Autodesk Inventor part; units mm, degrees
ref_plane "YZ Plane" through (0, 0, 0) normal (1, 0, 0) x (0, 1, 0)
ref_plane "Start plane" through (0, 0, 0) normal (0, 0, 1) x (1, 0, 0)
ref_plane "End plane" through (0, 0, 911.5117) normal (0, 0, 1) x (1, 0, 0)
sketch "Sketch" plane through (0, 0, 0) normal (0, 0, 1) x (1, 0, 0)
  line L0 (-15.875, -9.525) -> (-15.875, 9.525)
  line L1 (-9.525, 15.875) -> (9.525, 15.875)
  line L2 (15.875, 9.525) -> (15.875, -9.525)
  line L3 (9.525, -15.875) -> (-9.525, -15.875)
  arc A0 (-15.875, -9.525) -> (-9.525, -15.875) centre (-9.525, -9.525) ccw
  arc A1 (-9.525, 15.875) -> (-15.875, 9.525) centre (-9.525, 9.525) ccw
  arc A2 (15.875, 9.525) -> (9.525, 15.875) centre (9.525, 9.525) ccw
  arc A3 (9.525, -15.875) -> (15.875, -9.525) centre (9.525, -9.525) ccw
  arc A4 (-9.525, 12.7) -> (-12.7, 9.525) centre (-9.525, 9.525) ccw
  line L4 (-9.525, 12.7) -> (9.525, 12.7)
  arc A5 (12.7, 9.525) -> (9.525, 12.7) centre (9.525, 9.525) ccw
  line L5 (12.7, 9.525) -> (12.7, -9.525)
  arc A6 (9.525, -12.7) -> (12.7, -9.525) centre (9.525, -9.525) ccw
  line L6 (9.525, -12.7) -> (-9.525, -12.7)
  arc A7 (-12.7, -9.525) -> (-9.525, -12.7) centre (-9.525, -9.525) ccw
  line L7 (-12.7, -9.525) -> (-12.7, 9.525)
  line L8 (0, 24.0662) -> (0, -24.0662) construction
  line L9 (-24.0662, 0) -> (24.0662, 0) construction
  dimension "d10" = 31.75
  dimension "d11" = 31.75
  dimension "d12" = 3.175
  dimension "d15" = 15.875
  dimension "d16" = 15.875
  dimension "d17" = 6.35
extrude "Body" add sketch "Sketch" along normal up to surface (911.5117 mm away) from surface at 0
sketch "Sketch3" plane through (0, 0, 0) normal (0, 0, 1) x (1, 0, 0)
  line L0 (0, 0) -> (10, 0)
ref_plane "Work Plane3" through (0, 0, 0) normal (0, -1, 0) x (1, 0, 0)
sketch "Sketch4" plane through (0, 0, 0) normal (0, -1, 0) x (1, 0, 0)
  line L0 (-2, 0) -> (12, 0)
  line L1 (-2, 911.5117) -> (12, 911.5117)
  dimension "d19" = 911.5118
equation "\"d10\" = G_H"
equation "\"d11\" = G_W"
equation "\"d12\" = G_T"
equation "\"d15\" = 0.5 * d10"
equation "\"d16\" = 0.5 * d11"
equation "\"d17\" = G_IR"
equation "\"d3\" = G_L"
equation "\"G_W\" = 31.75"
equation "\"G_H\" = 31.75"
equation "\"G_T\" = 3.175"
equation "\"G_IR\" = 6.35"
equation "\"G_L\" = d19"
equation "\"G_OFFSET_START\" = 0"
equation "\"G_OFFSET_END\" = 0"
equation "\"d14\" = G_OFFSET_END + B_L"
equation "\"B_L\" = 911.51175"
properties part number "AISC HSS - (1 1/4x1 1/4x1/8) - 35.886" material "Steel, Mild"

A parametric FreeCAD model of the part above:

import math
import FreeCAD as App
import Part
import Sketcher

V = App.Vector
Q = App.Units.Quantity

doc = App.newDocument("Part")
params = doc.addObject("Spreadsheet::Sheet", "Params")
for row, (alias, value) in enumerate([
    ("sketch1_radius", "0.25 in"),
    ("sketch1_radius2", "0.125 in"),
    ("pad1_length", "911.5117 mm"),
], start=1):
    params.set(f"A{row}", alias)
    params.set(f"B{row}", "=" + value)
    params.setAlias(f"B{row}", alias)

body = doc.addObject("PartDesign::Body", "Body")

# Sketch on XY plane
sketch1 = doc.addObject("Sketcher::SketchObject", "Sketch")
body.addObject(sketch1)
sketch1.AttachmentSupport = (doc.XY_Plane, [""])
sketch1.MapMode = "FlatFace"
sketch1.addGeometry([
    Part.LineSegment(V(-15.875, 9.525, 0), V(-15.875, -9.525, 0)),  # 0
    Part.ArcOfCircle(Part.Circle(V(-9.525, -9.525, 0), V(0, 0, 1), 6.35), math.radians(180), math.radians(270)),  # 1
    Part.LineSegment(V(-9.525, -15.875, 0), V(9.525, -15.875, 0)),  # 2
    Part.ArcOfCircle(Part.Circle(V(9.525, -9.525, 0), V(0, 0, 1), 6.35), math.radians(-90), math.radians(0)),  # 3
    Part.LineSegment(V(15.875, -9.525, 0), V(15.875, 9.525, 0)),  # 4
    Part.ArcOfCircle(Part.Circle(V(9.525, 9.525, 0), V(0, 0, 1), 6.35), math.radians(0), math.radians(90)),  # 5
    Part.LineSegment(V(9.525, 15.875, 0), V(-9.525, 15.875, 0)),  # 6
    Part.ArcOfCircle(Part.Circle(V(-9.525, 9.525, 0), V(0, 0, 1), 6.35), math.radians(90), math.radians(180)),  # 7
    Part.ArcOfCircle(Part.Circle(V(-9.525, 9.525, 0), V(0, 0, 1), 3.175), math.radians(90), math.radians(180)),  # 8
    Part.LineSegment(V(-9.525, 12.7, 0), V(9.525, 12.7, 0)),  # 9
    Part.ArcOfCircle(Part.Circle(V(9.525, 9.525, 0), V(0, 0, 1), 3.175), math.radians(0), math.radians(90)),  # 10
    Part.LineSegment(V(12.7, 9.525, 0), V(12.7, -9.525, 0)),  # 11
    Part.ArcOfCircle(Part.Circle(V(9.525, -9.525, 0), V(0, 0, 1), 3.175), math.radians(-90), math.radians(0)),  # 12
    Part.LineSegment(V(9.525, -12.7, 0), V(-9.525, -12.7, 0)),  # 13
    Part.ArcOfCircle(Part.Circle(V(-9.525, -9.525, 0), V(0, 0, 1), 3.175), math.radians(180), math.radians(270)),  # 14
    Part.LineSegment(V(-12.7, -9.525, 0), V(-12.7, 9.525, 0)),  # 15
], False)
sketch1.addConstraint([
    Sketcher.Constraint("Tangent", 0, 2, 1, 1),
    Sketcher.Constraint("Tangent", 1, 2, 2, 1),
    Sketcher.Constraint("Tangent", 2, 2, 3, 1),
    Sketcher.Constraint("Tangent", 3, 2, 4, 1),
    Sketcher.Constraint("Tangent", 4, 2, 5, 1),
    Sketcher.Constraint("Tangent", 5, 2, 6, 1),
    Sketcher.Constraint("Tangent", 6, 2, 7, 1),
    Sketcher.Constraint("Tangent", 7, 2, 0, 1),
    Sketcher.Constraint("Tangent", 8, 1, 9, 1),
    Sketcher.Constraint("Tangent", 9, 2, 10, 2),
    Sketcher.Constraint("Tangent", 10, 1, 11, 1),
    Sketcher.Constraint("Tangent", 11, 2, 12, 2),
    Sketcher.Constraint("Tangent", 12, 1, 13, 1),
    Sketcher.Constraint("Tangent", 13, 2, 14, 2),
    Sketcher.Constraint("Tangent", 14, 1, 15, 1),
    Sketcher.Constraint("Tangent", 15, 2, 8, 2),
    Sketcher.Constraint("Vertical", 0),
    Sketcher.Constraint("Horizontal", 2),
    Sketcher.Constraint("Vertical", 4),
    Sketcher.Constraint("Horizontal", 6),
    Sketcher.Constraint("Horizontal", 9),
    Sketcher.Constraint("Vertical", 11),
    Sketcher.Constraint("Horizontal", 13),
    Sketcher.Constraint("Vertical", 15),
    Sketcher.Constraint("Coincident", 8, 3, 7, 3),
    Sketcher.Constraint("Coincident", 10, 3, 5, 3),
    Sketcher.Constraint("Coincident", 12, 3, 3, 3),
    Sketcher.Constraint("Equal", 1, 3),
    Sketcher.Constraint("Equal", 3, 5),
    Sketcher.Constraint("Equal", 5, 7),
    Sketcher.Constraint("Equal", 12, 14),
    Sketcher.Constraint("Symmetric", 1, 3, 5, 3, -1, 1),
    Sketcher.Constraint("Equal", 13, 0),
    Sketcher.Constraint("Radius", 1, Q("0.25 in")),
    Sketcher.Constraint("Radius", 8, Q("0.125 in")),
    Sketcher.Constraint("DistanceX", 0, 2, -1, 1, Q("0.625 in")),
])
sketch1.setExpression("Constraints[33]", "Params.sketch1_radius")
sketch1.setExpression("Constraints[34]", "Params.sketch1_radius2")
pad1 = doc.addObject("PartDesign::Pad", "Pad")
body.addObject(pad1)
pad1.Profile = sketch1
pad1.setExpression("Length", "Params.pad1_length")

doc.recompute()
